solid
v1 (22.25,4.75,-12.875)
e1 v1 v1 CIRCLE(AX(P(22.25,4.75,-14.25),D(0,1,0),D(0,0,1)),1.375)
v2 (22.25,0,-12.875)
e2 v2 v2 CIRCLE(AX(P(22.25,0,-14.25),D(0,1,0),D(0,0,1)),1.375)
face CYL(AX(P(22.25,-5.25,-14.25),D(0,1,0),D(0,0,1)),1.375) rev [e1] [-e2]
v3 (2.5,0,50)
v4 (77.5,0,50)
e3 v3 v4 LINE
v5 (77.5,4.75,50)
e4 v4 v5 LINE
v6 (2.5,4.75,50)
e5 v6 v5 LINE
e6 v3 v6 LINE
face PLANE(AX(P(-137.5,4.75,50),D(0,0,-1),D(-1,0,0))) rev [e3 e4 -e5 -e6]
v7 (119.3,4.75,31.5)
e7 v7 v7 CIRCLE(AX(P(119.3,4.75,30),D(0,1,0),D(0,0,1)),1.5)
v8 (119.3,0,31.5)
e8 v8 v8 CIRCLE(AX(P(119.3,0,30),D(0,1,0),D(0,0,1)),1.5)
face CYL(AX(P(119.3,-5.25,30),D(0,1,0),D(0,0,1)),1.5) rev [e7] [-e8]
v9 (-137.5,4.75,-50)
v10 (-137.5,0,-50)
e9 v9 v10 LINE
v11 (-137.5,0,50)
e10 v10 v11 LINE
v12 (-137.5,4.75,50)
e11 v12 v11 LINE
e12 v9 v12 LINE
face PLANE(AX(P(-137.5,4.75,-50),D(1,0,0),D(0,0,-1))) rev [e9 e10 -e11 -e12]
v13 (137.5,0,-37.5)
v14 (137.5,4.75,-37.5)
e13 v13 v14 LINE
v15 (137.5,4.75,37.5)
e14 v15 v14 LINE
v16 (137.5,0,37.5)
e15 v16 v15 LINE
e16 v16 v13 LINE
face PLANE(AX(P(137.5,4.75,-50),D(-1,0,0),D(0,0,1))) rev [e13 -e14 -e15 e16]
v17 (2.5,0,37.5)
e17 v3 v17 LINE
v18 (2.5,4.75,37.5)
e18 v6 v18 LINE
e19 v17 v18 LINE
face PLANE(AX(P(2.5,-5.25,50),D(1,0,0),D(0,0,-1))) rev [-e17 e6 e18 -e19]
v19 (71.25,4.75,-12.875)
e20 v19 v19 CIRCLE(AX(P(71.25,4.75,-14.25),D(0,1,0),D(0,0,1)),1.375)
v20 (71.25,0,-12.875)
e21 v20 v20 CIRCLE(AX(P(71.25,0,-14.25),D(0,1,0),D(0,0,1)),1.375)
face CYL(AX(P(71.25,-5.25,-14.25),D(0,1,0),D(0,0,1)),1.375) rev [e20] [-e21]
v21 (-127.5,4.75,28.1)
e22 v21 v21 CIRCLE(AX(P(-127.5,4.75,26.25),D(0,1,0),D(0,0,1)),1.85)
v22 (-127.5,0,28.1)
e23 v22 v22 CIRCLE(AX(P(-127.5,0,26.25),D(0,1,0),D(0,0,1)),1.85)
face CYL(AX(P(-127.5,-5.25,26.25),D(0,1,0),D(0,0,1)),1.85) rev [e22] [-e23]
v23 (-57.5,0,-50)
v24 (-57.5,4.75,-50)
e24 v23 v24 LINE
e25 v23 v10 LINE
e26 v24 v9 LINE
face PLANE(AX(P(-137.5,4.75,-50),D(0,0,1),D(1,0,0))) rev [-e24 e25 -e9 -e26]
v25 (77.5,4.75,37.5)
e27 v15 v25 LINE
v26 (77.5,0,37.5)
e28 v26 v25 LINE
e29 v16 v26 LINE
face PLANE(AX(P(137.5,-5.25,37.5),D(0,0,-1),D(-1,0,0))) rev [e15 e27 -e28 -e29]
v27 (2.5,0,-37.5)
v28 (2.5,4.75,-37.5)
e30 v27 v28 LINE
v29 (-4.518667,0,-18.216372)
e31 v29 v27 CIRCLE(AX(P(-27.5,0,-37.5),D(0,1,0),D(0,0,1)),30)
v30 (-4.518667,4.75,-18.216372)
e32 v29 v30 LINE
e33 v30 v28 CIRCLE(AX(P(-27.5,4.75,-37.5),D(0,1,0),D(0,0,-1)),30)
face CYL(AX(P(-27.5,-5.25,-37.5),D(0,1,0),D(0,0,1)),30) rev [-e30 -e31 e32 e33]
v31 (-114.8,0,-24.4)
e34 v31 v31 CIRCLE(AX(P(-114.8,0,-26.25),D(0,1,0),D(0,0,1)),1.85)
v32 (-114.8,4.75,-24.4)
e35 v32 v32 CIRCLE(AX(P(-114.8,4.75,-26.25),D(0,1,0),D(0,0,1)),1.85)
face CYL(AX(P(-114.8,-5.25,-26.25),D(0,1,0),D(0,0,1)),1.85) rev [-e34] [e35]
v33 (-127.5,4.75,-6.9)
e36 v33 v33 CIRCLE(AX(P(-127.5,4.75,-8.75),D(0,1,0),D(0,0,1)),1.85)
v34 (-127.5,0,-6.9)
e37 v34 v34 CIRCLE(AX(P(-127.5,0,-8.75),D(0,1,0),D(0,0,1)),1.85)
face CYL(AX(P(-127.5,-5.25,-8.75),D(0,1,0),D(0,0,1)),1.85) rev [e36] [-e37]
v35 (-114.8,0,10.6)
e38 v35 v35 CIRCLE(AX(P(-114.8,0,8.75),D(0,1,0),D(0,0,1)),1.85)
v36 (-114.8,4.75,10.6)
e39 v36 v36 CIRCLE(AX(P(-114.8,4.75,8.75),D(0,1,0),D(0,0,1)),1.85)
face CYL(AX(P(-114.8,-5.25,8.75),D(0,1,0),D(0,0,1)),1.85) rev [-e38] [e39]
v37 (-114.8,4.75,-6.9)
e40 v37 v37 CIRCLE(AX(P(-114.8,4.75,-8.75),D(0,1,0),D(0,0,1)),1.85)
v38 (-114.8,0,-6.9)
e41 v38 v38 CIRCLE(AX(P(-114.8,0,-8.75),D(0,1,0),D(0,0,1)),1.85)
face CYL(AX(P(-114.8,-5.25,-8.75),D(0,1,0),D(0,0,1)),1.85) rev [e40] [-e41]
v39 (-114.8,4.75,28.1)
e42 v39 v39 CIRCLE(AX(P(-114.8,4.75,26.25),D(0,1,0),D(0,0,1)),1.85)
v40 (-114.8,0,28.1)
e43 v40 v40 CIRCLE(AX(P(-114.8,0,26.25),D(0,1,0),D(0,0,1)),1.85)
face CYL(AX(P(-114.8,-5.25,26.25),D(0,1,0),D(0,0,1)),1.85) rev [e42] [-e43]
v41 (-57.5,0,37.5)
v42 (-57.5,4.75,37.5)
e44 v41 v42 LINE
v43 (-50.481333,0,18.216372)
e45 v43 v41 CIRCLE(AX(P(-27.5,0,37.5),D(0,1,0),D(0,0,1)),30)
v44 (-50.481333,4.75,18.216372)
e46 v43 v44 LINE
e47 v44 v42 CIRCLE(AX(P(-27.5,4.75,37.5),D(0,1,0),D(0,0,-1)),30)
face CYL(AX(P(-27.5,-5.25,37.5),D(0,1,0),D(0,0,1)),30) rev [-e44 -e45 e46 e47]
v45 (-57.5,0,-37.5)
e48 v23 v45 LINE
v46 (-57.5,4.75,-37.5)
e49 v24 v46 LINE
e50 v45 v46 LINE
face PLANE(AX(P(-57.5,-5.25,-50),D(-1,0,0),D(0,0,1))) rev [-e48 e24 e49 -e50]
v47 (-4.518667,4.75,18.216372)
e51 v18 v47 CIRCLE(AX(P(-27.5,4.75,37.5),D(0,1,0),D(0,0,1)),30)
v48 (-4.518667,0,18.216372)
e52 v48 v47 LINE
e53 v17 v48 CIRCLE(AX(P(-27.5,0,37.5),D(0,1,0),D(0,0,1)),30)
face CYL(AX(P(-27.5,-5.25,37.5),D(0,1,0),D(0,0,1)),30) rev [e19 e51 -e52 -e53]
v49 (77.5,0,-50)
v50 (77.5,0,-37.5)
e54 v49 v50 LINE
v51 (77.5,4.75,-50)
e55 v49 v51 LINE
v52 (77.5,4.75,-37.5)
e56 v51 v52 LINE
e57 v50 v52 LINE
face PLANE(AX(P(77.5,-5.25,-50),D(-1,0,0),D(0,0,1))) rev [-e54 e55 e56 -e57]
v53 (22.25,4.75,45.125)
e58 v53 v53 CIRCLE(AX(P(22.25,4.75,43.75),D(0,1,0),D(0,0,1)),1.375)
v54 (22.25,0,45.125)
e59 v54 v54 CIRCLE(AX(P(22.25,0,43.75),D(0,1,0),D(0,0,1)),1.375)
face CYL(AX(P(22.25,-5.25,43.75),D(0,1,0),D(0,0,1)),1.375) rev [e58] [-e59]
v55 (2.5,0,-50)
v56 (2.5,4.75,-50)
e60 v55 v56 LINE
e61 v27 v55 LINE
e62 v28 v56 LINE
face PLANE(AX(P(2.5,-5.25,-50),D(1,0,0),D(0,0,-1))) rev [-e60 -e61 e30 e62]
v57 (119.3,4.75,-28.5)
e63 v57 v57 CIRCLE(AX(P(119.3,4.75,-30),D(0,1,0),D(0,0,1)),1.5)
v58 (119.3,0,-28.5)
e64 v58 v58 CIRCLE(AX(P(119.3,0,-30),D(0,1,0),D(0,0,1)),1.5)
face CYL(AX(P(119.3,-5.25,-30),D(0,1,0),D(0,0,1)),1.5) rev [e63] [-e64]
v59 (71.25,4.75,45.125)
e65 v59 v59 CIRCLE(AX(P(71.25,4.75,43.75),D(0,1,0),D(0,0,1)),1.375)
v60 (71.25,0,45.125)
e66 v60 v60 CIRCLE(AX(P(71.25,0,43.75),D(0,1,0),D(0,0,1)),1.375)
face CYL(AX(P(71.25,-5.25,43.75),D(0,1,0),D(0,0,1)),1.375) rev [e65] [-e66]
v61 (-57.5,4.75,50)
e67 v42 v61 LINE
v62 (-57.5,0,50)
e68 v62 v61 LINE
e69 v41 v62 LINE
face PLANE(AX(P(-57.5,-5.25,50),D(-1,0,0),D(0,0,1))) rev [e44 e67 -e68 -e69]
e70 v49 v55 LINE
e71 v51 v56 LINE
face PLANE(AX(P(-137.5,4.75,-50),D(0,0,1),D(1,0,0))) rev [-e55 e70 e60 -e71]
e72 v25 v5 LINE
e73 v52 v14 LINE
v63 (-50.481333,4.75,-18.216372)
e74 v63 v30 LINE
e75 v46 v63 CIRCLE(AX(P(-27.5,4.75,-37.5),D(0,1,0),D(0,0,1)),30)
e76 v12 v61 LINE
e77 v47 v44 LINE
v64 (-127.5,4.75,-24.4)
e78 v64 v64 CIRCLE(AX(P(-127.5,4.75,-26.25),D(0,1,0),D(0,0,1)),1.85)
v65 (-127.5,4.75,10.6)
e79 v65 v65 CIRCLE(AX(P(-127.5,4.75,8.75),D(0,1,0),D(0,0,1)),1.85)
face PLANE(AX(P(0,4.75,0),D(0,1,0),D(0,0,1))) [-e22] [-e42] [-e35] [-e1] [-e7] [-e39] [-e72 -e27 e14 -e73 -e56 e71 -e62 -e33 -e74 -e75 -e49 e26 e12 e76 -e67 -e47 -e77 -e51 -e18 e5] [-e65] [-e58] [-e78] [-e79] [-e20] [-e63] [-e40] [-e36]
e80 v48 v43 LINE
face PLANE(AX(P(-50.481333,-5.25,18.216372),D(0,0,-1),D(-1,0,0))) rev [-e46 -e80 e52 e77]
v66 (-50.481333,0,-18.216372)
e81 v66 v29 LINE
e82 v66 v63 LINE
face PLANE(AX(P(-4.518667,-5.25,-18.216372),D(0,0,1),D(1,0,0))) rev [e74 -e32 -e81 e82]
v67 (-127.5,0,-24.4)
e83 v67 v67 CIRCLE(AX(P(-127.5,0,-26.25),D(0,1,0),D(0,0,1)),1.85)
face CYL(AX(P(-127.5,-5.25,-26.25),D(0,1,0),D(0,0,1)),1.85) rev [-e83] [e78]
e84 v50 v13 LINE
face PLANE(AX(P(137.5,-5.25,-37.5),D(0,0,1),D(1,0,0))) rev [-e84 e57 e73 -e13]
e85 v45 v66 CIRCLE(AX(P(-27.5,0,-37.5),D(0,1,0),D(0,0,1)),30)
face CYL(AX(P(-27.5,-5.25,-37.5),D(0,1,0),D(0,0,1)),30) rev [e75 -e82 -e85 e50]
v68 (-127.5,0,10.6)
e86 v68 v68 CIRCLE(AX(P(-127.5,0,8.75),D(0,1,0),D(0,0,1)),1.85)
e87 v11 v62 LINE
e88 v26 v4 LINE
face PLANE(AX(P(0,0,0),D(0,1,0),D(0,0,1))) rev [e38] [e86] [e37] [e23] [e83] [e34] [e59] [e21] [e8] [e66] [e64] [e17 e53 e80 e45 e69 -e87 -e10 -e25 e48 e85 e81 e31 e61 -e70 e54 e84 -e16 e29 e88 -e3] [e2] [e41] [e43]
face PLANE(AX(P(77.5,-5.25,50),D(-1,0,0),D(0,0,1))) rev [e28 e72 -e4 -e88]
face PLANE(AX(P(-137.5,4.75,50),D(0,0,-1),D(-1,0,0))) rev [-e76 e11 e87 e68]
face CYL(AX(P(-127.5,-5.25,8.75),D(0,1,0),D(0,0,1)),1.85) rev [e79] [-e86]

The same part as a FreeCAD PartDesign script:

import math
import FreeCAD as App
import Part
import Sketcher
from FreeCAD import Vector
Q = App.Units.Quantity

doc = App.newDocument("Part")
body = doc.addObject("PartDesign::Body", "Body")

# Sketch on XZ plane
sketch1 = doc.addObject("Sketcher::SketchObject", "Sketch")
body.addObject(sketch1)
sketch1.AttachmentSupport = (doc.XZ_Plane, [""])
sketch1.MapMode = "FlatFace"
sketch1.addGeometry([
    Part.LineSegment(Vector(-138, -50, 0), Vector(-138, 50, 0)),
    Part.LineSegment(Vector(-138, 50, 0), Vector(138, 50, 0)),
    Part.LineSegment(Vector(138, 50, 0), Vector(138, -50, 0)),
    Part.LineSegment(Vector(138, -50, 0), Vector(-138, -50, 0)),
], False)
sketch1.addConstraint([
    Sketcher.Constraint("Coincident", 0, 2, 1, 1),
    Sketcher.Constraint("Coincident", 1, 2, 2, 1),
    Sketcher.Constraint("Coincident", 2, 2, 3, 1),
    Sketcher.Constraint("Coincident", 3, 2, 0, 1),
    Sketcher.Constraint("Vertical", 0),
    Sketcher.Constraint("Horizontal", 1),
    Sketcher.Constraint("Vertical", 2),
    Sketcher.Constraint("Horizontal", 3),
    Sketcher.Constraint("Symmetric", 0, 2, 2, 2, -1, 1),
    Sketcher.Constraint("DistanceX", 1, 1, 1, 2, Q("275 mm")),
    Sketcher.Constraint("DistanceY", 0, 1, 0, 2, Q("100 mm")),
])
pad1 = doc.addObject("PartDesign::Pad", "Pad")
body.addObject(pad1)
pad1.Profile = sketch1
pad1.Length = 4.75
pad1.Reversed = True

# Sketch on XZ plane
sketch2 = doc.addObject("Sketcher::SketchObject", "Sketch001")
body.addObject(sketch2)
sketch2.AttachmentSupport = (doc.XZ_Plane, [""])
sketch2.MapMode = "FlatFace"
sketch2.AttachmentOffset = App.Placement(Vector(0, 0, -4.75), App.Rotation())
sketch2.addGeometry([
    Part.Circle(Vector(119.3, 30, 0), Vector(0, 0, 1), 1.5),  # 0
    Part.Circle(Vector(119.3, -30, 0), Vector(0, 0, 1), 1.5),  # 1
    Part.LineSegment(Vector(77.5, 37.5, 0), Vector(77.5, 50, 0)),  # 2
    Part.LineSegment(Vector(77.5, 50, 0), Vector(137.5, 50, 0)),  # 3
    Part.LineSegment(Vector(137.5, 50, 0), Vector(137.5, 37.5, 0)),  # 4
    Part.LineSegment(Vector(137.5, 37.5, 0), Vector(77.5, 37.5, 0)),  # 5
    Part.LineSegment(Vector(77.5, -50, 0), Vector(77.5, -37.5, 0)),  # 6
    Part.LineSegment(Vector(77.5, -37.5, 0), Vector(137.5, -37.5, 0)),  # 7
    Part.LineSegment(Vector(137.5, -37.5, 0), Vector(137.5, -50, 0)),  # 8
    Part.LineSegment(Vector(137.5, -50, 0), Vector(77.5, -50, 0)),  # 9
    Part.LineSegment(Vector(-57.5, 50, 0), Vector(2.5, 50, 0)),  # 10
    Part.LineSegment(Vector(2.5, 50, 0), Vector(2.5, 37.5, 0)),  # 11
    Part.ArcOfCircle(Part.Circle(Vector(-27.5, 37.5, 0), Vector(0, 0, 1), 30), math.radians(-40), math.radians(0)),  # 12
    Part.LineSegment(Vector(-4.5, 18.2, 0), Vector(-50.5, 18.2, 0)),  # 13
    Part.ArcOfCircle(Part.Circle(Vector(-27.5, 37.5, 0), Vector(0, 0, 1), 30), math.radians(180), math.radians(220)),  # 14
    Part.LineSegment(Vector(-57.5, 37.5, 0), Vector(-57.5, 50, 0)),  # 15
    Part.LineSegment(Vector(2.5, -50, 0), Vector(-57.5, -50, 0)),  # 16
    Part.LineSegment(Vector(-57.5, -50, 0), Vector(-57.5, -37.5, 0)),  # 17
    Part.ArcOfCircle(Part.Circle(Vector(-27.5, -37.5, 0), Vector(0, 0, 1), 30), math.radians(140), math.radians(180)),  # 18
    Part.LineSegment(Vector(-50.5, -18.2, 0), Vector(-4.5, -18.2, 0)),  # 19
    Part.ArcOfCircle(Part.Circle(Vector(-27.5, -37.5, 0), Vector(0, 0, 1), 30), math.radians(0), math.radians(40)),  # 20
    Part.LineSegment(Vector(2.5, -37.5, 0), Vector(2.5, -50, 0)),  # 21
], False)
sketch2.addConstraint([
    Sketcher.Constraint("Coincident", 2, 2, 3, 1),
    Sketcher.Constraint("Coincident", 3, 2, 4, 1),
    Sketcher.Constraint("Coincident", 4, 2, 5, 1),
    Sketcher.Constraint("Coincident", 5, 2, 2, 1),
    Sketcher.Constraint("Coincident", 6, 2, 7, 1),
    Sketcher.Constraint("Coincident", 7, 2, 8, 1),
    Sketcher.Constraint("Coincident", 8, 2, 9, 1),
    Sketcher.Constraint("Coincident", 9, 2, 6, 1),
    Sketcher.Constraint("Coincident", 10, 2, 11, 1),
    Sketcher.Constraint("Tangent", 11, 2, 12, 2),
    Sketcher.Constraint("Coincident", 12, 1, 13, 1),
    Sketcher.Constraint("Coincident", 13, 2, 14, 2),
    Sketcher.Constraint("Tangent", 14, 1, 15, 1),
    Sketcher.Constraint("Coincident", 15, 2, 10, 1),
    Sketcher.Constraint("Coincident", 16, 2, 17, 1),
    Sketcher.Constraint("Tangent", 17, 2, 18, 2),
    Sketcher.Constraint("Coincident", 18, 1, 19, 1),
    Sketcher.Constraint("Coincident", 19, 2, 20, 2),
    Sketcher.Constraint("Tangent", 20, 1, 21, 1),
    Sketcher.Constraint("Coincident", 21, 2, 16, 1),
    Sketcher.Constraint("Vertical", 2),
    Sketcher.Constraint("Horizontal", 3),
    Sketcher.Constraint("Vertical", 4),
    Sketcher.Constraint("Horizontal", 5),
    Sketcher.Constraint("Vertical", 6),
    Sketcher.Constraint("Horizontal", 7),
    Sketcher.Constraint("Vertical", 8),
    Sketcher.Constraint("Horizontal", 9),
    Sketcher.Constraint("Horizontal", 10),
    Sketcher.Constraint("Vertical", 11),
    Sketcher.Constraint("Horizontal", 13),
    Sketcher.Constraint("Vertical", 15),
    Sketcher.Constraint("Horizontal", 16),
    Sketcher.Constraint("Vertical", 17),
    Sketcher.Constraint("Horizontal", 19),
    Sketcher.Constraint("Vertical", 21),
    Sketcher.Constraint("Coincident", 14, 3, 12, 3),
    Sketcher.Constraint("Coincident", 20, 3, 18, 3),
    Sketcher.Constraint("Equal", 0, 1),
    Sketcher.Constraint("Equal", 12, 14),
    Sketcher.Constraint("Equal", 14, 18),
    Sketcher.Constraint("Equal", 18, 20),
    Sketcher.Constraint("Symmetric", 0, 3, 1, 3, -1),
    Sketcher.Constraint("Symmetric", 12, 3, 18, 3, -1),
    Sketcher.Constraint("Symmetric", 5, 2, 6, 2, -1),
    Sketcher.Constraint("Symmetric", 3, 2, 8, 2, -1),
    Sketcher.Constraint("Horizontal", 14, 3, 4, 2),
    Sketcher.Constraint("Horizontal", 3, 2, 10, 2),
    Sketcher.Constraint("Horizontal", 9, 2, 16, 2),
    Sketcher.Constraint("Vertical", 13, 2, 18, 1),
    Sketcher.Constraint("Equal", 9, 10),
    Sketcher.Constraint("Diameter", 0, Q("3 mm")),
    Sketcher.Constraint("Radius", 12, Q("30 mm")),
    Sketcher.Constraint("DistanceY", 2, 1, 2, 2, Q("12.5 mm")),
    Sketcher.Constraint("DistanceY", -1, 1, 0, 3, Q("30 mm")),
    Sketcher.Constraint("DistanceY", -1, 1, 2, 2, Q("50 mm")),
    Sketcher.Constraint("DistanceX", 12, 3, 2, 2, Q("105 mm")),
    Sketcher.Constraint("DistanceX", -1, 1, 0, 3, Q("119.3 mm")),
    Sketcher.Constraint("DistanceX", 12, 3, -1, 1, Q("27.5 mm")),
    Sketcher.Constraint("DistanceX", 13, 2, 13, 1, Q("45.962667 mm")),
])
pocket1 = doc.addObject("PartDesign::Pocket", "Pocket")
body.addObject(pocket1)
pocket1.Profile = sketch2
pocket1.Length = 10
pocket1.Reversed = True

# Sketch on XZ plane
sketch3 = doc.addObject("Sketcher::SketchObject", "Sketch002")
body.addObject(sketch3)
sketch3.AttachmentSupport = (doc.XZ_Plane, [""])
sketch3.MapMode = "FlatFace"
sketch3.AttachmentOffset = App.Placement(Vector(0, 0, -4.75), App.Rotation())
sketch3.addGeometry([
    Part.Circle(Vector(-127.5, 26.2, 0), Vector(0, 0, 1), 1.9),  # 0
    Part.Circle(Vector(-114.8, 26.2, 0), Vector(0, 0, 1), 1.9),  # 1
    Part.Circle(Vector(-127.5, 8.8, 0), Vector(0, 0, 1), 1.9),  # 2
    Part.Circle(Vector(-114.8, 8.8, 0), Vector(0, 0, 1), 1.9),  # 3
    Part.Circle(Vector(-114.8, -8.8, 0), Vector(0, 0, 1), 1.9),  # 4
    Part.Circle(Vector(-127.5, -8.8, 0), Vector(0, 0, 1), 1.9),  # 5
    Part.Circle(Vector(-114.8, -26.2, 0), Vector(0, 0, 1), 1.9),  # 6
    Part.Circle(Vector(-127.5, -26.2, 0), Vector(0, 0, 1), 1.9),  # 7
    Part.Circle(Vector(71.2, 43.8, 0), Vector(0, 0, 1), 1.4),  # 8
    Part.Circle(Vector(22.2, 43.8, 0), Vector(0, 0, 1), 1.4),  # 9
    Part.Circle(Vector(71.2, -14.2, 0), Vector(0, 0, 1), 1.4),  # 10
    Part.Circle(Vector(22.2, -14.2, 0), Vector(0, 0, 1), 1.4),  # 11
], False)
sketch3.addConstraint([
    Sketcher.Constraint("Equal", 0, 1),
    Sketcher.Constraint("Equal", 1, 2),
    Sketcher.Constraint("Equal", 2, 3),
    Sketcher.Constraint("Equal", 3, 4),
    Sketcher.Constraint("Equal", 4, 5),
    Sketcher.Constraint("Equal", 5, 6),
    Sketcher.Constraint("Equal", 6, 7),
    Sketcher.Constraint("Equal", 8, 9),
    Sketcher.Constraint("Equal", 9, 10),
    Sketcher.Constraint("Equal", 10, 11),
    Sketcher.Constraint("Symmetric", 3, 3, 4, 3, -1),
    Sketcher.Constraint("Symmetric", 2, 3, 5, 3, -1),
    Sketcher.Constraint("Symmetric", 1, 3, 6, 3, -1),
    Sketcher.Constraint("Symmetric", 0, 3, 7, 3, -1),
    Sketcher.Constraint("Horizontal", 0, 3, 1, 3),
    Sketcher.Constraint("Horizontal", 2, 3, 3, 3),
    Sketcher.Constraint("Horizontal", 8, 3, 9, 3),
    Sketcher.Constraint("Horizontal", 10, 3, 11, 3),
    Sketcher.Constraint("Vertical", 0, 3, 2, 3),
    Sketcher.Constraint("Vertical", 1, 3, 3, 3),
    Sketcher.Constraint("Vertical", 8, 3, 10, 3),
    Sketcher.Constraint("Vertical", 9, 3, 11, 3),
    Sketcher.Constraint("Diameter", 0, Q("3.7 mm")),
    Sketcher.Constraint("Diameter", 8, Q("2.75 mm")),
    Sketcher.Constraint("DistanceY", 4, 3, 1, 3, Q("35 mm")),
    Sketcher.Constraint("DistanceY", 3, 3, 8, 3, Q("35 mm")),
    Sketcher.Constraint("DistanceX", 9, 3, 8, 3, Q("49 mm")),
    Sketcher.Constraint("DistanceY", 10, 3, 8, 3, Q("58 mm")),
    Sketcher.Constraint("DistanceX", 0, 3, -1, 1, Q("127.5 mm")),
    Sketcher.Constraint("DistanceX", 1, 3, -1, 1, Q("114.8 mm")),
    Sketcher.Constraint("DistanceY", 2, 3, 0, 3, Q("17.5 mm")),
    Sketcher.Constraint("DistanceX", -1, 1, 8, 3, Q("71.25 mm")),
])
pocket2 = doc.addObject("PartDesign::Pocket", "Pocket001")
body.addObject(pocket2)
pocket2.Profile = sketch3
pocket2.Length = 10
pocket2.Reversed = True

doc.recompute()
